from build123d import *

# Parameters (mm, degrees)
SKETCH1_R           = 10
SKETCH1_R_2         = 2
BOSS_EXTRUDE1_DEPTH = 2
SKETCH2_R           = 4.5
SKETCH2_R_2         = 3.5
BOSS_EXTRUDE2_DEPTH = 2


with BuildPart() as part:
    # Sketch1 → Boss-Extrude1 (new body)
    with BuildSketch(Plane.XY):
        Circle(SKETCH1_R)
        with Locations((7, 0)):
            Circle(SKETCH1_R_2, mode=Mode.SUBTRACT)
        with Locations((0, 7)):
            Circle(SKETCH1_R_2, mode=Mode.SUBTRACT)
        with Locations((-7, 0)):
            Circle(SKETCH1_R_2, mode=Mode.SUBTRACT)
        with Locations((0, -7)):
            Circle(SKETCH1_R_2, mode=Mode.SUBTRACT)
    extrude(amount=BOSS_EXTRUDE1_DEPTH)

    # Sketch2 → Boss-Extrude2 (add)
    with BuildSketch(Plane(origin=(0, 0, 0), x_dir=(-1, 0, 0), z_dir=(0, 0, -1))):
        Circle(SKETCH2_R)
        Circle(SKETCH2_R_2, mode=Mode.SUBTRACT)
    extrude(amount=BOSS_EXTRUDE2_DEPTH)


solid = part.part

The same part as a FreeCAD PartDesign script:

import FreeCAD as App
import Part
import Sketcher
Q = App.Units.Quantity

doc = App.newDocument("Part")
body = doc.addObject("PartDesign::Body", "Body")

sketch1 = body.newObject("Sketcher::SketchObject", "Sketch")
sketch1.AttachmentSupport = (doc.getObject("XY_Plane"), [""])
sketch1.MapMode = "FlatFace"
sketch1.addGeometry(Part.Circle(App.Vector(0, 0, 0), App.Vector(0, 0, 1), 10), False)
sketch1.addGeometry(Part.Circle(App.Vector(0, -7, 0), App.Vector(0, 0, 1), 2), False)
sketch1.addGeometry(Part.Circle(App.Vector(-7, 0, 0), App.Vector(0, 0, 1), 2), False)
sketch1.addGeometry(Part.Circle(App.Vector(7, 0, 0), App.Vector(0, 0, 1), 2), False)
sketch1.addGeometry(Part.Circle(App.Vector(0, 7, 0), App.Vector(0, 0, 1), 2), False)
sketch1.addConstraint(Sketcher.Constraint("Coincident", 0, 3, -1, 1))
sketch1.addConstraint(Sketcher.Constraint("Equal", 1, 2))
sketch1.addConstraint(Sketcher.Constraint("Equal", 2, 3))
sketch1.addConstraint(Sketcher.Constraint("Equal", 3, 4))
sketch1.addConstraint(Sketcher.Constraint("Symmetric", 2, 3, 3, 3, -1, 1))
sketch1.addConstraint(Sketcher.Constraint("Symmetric", 1, 3, 4, 3, -1, 1))
sketch1.addConstraint(Sketcher.Constraint("PointOnObject", 1, 3, -2))
sketch1.addConstraint(Sketcher.Constraint("PointOnObject", 2, 3, -1))
sketch1.addConstraint(Sketcher.Constraint("Diameter", 0, Q("20 mm")))
sketch1.addConstraint(Sketcher.Constraint("Diameter", 1, Q("4 mm")))
sketch1.addConstraint(Sketcher.Constraint("DistanceY", 1, 3, -1, 1, Q("7 mm")))
sketch1.addConstraint(Sketcher.Constraint("DistanceX", 2, 3, -1, 1, Q("7 mm")))
pad1 = body.newObject("PartDesign::Pad", "Pad")
pad1.Profile = sketch1
pad1.Length = 2

sketch2 = body.newObject("Sketcher::SketchObject", "Sketch001")
sketch2.AttachmentSupport = (doc.getObject("XY_Plane"), [""])
sketch2.MapMode = "FlatFace"
sketch2.addGeometry(Part.Circle(App.Vector(0, 0, 0), App.Vector(0, 0, 1), 4.5), False)
sketch2.addGeometry(Part.Circle(App.Vector(0, 0, 0), App.Vector(0, 0, 1), 3.5), False)
sketch2.addConstraint(Sketcher.Constraint("Coincident", 0, 3, -1, 1))
sketch2.addConstraint(Sketcher.Constraint("Coincident", 1, 3, -1, 1))
sketch2.addConstraint(Sketcher.Constraint("Diameter", 0, Q("9 mm")))
sketch2.addConstraint(Sketcher.Constraint("Diameter", 1, Q("7 mm")))
pad2 = body.newObject("PartDesign::Pad", "Pad001")
pad2.Profile = sketch2
pad2.Length = 2
pad2.Reversed = True

doc.recompute()
